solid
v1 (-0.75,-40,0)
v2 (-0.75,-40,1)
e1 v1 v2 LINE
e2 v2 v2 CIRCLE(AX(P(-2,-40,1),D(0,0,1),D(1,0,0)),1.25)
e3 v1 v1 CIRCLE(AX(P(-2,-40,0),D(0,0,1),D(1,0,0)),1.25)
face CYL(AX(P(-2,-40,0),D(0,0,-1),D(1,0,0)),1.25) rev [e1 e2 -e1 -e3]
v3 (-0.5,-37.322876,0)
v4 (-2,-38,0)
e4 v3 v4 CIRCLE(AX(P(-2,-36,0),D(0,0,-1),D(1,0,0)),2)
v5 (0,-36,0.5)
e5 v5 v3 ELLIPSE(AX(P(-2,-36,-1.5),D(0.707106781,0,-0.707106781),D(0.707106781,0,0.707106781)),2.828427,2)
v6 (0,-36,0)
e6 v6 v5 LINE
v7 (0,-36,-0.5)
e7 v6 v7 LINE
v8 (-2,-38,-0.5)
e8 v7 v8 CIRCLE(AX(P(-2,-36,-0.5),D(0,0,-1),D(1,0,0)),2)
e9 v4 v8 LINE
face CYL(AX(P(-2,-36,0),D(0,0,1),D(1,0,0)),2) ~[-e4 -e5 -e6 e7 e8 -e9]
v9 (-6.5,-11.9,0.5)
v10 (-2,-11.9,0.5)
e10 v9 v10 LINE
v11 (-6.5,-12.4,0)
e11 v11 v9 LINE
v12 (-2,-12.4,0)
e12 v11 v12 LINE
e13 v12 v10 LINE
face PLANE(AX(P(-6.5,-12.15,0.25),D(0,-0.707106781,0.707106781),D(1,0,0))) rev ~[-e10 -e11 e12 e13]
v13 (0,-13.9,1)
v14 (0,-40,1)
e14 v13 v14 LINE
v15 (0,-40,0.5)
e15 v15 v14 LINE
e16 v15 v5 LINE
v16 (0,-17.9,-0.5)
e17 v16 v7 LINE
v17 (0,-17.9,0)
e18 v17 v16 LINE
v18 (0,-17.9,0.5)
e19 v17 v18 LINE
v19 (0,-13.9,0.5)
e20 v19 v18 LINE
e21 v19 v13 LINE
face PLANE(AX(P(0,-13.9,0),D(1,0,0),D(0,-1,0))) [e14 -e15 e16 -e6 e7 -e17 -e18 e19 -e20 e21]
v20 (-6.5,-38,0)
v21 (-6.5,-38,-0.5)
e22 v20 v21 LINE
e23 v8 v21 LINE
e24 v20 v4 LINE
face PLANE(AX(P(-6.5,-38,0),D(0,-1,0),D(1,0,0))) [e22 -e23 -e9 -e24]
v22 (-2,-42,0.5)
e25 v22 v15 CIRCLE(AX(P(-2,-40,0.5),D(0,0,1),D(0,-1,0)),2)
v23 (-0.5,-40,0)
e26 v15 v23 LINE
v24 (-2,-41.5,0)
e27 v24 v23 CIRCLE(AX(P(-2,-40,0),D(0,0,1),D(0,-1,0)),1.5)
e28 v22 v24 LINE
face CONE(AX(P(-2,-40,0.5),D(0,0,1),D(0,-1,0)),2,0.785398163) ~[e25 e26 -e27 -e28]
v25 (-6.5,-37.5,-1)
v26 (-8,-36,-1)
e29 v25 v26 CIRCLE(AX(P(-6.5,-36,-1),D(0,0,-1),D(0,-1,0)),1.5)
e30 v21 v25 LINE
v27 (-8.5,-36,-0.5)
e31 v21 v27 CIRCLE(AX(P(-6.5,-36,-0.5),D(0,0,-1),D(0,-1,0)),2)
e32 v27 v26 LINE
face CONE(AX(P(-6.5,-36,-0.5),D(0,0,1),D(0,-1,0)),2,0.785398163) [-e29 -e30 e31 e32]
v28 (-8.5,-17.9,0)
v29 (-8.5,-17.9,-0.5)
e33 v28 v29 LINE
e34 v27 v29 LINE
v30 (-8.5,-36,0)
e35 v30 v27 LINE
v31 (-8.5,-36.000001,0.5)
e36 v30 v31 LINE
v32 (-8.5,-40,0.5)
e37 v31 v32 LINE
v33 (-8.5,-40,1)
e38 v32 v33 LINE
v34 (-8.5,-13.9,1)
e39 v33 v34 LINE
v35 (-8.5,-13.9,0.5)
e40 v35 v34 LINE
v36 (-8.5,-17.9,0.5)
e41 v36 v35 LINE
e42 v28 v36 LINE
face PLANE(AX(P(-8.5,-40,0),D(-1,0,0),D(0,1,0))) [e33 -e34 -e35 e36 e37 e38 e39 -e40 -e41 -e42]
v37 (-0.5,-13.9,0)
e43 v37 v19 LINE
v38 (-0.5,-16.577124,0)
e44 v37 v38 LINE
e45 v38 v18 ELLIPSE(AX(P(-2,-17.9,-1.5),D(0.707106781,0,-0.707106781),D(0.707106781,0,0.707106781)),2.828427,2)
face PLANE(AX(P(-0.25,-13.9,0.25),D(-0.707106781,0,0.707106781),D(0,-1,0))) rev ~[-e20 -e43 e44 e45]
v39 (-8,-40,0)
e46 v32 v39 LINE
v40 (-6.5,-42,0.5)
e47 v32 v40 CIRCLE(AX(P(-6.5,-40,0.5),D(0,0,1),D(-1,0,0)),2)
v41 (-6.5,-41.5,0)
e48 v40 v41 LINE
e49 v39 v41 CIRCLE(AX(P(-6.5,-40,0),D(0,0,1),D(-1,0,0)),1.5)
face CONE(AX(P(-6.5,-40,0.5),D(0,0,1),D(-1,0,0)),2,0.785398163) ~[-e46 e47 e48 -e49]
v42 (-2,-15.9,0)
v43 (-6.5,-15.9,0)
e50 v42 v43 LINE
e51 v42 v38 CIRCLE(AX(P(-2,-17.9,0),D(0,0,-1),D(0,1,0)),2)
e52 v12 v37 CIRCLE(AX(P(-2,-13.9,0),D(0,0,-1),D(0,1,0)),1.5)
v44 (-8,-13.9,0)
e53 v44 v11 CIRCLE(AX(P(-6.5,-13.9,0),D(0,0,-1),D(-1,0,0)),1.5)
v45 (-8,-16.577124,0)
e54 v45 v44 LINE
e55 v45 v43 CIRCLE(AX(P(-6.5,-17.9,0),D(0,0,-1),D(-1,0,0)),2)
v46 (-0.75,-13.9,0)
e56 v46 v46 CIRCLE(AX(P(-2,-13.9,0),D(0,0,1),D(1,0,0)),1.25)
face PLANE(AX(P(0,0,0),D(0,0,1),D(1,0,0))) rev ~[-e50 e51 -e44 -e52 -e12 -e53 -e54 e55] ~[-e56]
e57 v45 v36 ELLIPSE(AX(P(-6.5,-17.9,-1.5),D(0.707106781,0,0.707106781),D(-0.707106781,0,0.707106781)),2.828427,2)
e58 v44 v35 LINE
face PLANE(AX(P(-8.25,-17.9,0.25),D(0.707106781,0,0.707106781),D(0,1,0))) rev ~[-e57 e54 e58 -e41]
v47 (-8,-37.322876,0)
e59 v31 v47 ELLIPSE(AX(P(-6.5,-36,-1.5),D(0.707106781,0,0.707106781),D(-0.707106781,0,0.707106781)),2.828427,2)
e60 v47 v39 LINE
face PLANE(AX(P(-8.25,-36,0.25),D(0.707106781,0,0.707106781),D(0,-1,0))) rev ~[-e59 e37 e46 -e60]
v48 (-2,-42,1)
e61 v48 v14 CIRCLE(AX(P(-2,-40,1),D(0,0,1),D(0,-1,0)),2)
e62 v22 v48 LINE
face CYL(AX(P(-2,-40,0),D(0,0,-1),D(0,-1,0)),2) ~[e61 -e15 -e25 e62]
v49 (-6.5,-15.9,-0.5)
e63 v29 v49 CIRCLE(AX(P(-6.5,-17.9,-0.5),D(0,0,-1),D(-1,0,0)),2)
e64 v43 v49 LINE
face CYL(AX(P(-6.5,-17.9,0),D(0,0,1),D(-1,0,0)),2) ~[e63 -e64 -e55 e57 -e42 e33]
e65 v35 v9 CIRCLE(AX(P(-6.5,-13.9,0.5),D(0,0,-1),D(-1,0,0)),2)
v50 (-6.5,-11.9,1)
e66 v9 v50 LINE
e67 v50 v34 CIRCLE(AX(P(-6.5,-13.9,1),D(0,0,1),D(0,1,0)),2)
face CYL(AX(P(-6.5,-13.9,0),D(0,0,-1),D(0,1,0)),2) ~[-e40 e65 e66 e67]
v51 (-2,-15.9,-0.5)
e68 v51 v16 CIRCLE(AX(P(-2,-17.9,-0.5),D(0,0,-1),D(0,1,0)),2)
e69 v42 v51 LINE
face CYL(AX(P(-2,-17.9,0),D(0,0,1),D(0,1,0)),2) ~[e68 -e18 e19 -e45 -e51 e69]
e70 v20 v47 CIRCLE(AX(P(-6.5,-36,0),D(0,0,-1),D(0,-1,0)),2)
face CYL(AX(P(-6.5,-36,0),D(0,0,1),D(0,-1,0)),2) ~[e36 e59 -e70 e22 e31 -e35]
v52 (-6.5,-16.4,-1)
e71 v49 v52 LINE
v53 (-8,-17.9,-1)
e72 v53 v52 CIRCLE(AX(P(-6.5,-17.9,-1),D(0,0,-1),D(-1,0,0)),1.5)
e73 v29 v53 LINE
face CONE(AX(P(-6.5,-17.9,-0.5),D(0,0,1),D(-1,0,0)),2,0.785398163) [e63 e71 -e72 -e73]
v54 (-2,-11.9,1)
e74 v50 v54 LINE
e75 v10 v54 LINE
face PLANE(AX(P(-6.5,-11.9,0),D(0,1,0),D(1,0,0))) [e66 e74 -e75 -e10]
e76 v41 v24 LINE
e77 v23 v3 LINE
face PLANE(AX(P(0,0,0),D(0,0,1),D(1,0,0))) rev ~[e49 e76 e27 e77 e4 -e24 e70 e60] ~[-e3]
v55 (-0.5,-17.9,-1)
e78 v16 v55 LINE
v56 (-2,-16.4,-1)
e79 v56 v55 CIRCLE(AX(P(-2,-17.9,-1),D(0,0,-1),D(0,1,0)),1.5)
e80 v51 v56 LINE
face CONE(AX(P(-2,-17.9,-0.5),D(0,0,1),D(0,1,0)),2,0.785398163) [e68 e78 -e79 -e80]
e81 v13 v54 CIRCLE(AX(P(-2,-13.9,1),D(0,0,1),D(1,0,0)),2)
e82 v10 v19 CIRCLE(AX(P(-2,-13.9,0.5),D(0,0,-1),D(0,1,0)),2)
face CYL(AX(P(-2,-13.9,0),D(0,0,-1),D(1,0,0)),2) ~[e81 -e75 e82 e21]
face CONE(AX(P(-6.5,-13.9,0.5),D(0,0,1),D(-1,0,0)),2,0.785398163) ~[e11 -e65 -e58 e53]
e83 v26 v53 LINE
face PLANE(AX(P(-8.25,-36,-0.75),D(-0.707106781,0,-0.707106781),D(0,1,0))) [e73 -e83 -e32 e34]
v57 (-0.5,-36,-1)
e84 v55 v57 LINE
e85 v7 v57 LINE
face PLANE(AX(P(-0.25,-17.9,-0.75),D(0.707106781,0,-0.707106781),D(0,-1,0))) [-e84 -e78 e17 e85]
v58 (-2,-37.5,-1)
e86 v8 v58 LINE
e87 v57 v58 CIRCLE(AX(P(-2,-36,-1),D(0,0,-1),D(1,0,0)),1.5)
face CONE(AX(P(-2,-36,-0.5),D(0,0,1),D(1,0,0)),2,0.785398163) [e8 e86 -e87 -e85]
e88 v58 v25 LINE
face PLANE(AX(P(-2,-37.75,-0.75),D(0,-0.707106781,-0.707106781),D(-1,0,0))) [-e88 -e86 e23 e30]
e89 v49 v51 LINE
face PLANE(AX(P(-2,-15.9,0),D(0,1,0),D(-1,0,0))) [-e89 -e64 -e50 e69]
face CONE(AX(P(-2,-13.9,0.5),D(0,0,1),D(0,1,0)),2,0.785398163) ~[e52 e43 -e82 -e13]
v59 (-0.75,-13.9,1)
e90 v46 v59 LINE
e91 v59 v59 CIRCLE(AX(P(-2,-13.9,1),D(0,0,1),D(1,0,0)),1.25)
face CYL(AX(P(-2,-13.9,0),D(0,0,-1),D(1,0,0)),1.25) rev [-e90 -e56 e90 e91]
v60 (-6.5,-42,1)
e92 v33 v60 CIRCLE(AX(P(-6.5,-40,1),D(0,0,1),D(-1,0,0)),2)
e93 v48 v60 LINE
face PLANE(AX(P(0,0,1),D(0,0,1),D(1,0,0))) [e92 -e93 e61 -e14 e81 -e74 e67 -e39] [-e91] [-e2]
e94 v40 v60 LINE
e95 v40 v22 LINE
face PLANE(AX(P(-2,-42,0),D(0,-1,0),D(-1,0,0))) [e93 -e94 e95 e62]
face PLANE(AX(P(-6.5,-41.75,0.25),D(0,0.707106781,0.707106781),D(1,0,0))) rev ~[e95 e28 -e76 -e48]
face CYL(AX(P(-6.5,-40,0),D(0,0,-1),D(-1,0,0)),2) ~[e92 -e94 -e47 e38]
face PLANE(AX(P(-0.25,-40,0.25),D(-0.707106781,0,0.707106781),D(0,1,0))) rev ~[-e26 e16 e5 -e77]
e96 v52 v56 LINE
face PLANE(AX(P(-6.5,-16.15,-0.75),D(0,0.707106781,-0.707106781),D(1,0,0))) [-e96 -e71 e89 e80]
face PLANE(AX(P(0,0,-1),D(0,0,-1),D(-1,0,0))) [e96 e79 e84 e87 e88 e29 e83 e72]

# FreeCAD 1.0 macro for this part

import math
import FreeCAD as App
import Part
import Sketcher

V = App.Vector
Q = App.Units.Quantity


def edges_at(feature, points):
    """Names of the edges that pass closest to the given points."""
    edges = feature.Shape.Edges
    near = lambda p: min(range(len(edges)), key=lambda i: edges[i].distToShape(Part.Vertex(*p))[0])
    return sorted({f"Edge{near(p) + 1}" for p in points})

doc = App.newDocument("Part")
body = doc.addObject("PartDesign::Body", "Body")

sketch1 = body.newObject("Sketcher::SketchObject", "Sketch")
sketch1.AttachmentSupport = (doc.getObject("XY_Plane"), [""])
sketch1.MapMode = "FlatFace"
sketch1.addGeometry(Part.LineSegment(V(-2, -11.9, 0), V(-6.5, -11.9, 0)), False)
sketch1.addGeometry(Part.ArcOfCircle(Part.Circle(V(-6.5, -13.9, 0), V(0, 0, 1), 2), math.radians(90), math.radians(180)), False)
sketch1.addGeometry(Part.LineSegment(V(-8.5, -13.9, 0), V(-8.5, -40, 0)), False)
sketch1.addGeometry(Part.ArcOfCircle(Part.Circle(V(-6.5, -40, 0), V(0, 0, 1), 2), math.radians(180), math.radians(270)), False)
sketch1.addGeometry(Part.LineSegment(V(-6.5, -42, 0), V(-2, -42, 0)), False)
sketch1.addGeometry(Part.ArcOfCircle(Part.Circle(V(-2, -40, 0), V(0, 0, 1), 2), math.radians(-90), math.radians(0)), False)
sketch1.addGeometry(Part.LineSegment(V(0, -40, 0), V(0, -13.9, 0)), False)
sketch1.addGeometry(Part.ArcOfCircle(Part.Circle(V(-2, -13.9, 0), V(0, 0, 1), 2), math.radians(0), math.radians(90)), False)
sketch1.addGeometry(Part.Circle(V(-2, -40, 0), V(0, 0, 1), 1.25), False)
sketch1.addGeometry(Part.Circle(V(-2, -13.9, 0), V(0, 0, 1), 1.25), False)
sketch1.addConstraint(Sketcher.Constraint("Tangent", 0, 2, 1, 1))
sketch1.addConstraint(Sketcher.Constraint("Tangent", 1, 2, 2, 1))
sketch1.addConstraint(Sketcher.Constraint("Tangent", 2, 2, 3, 1))
sketch1.addConstraint(Sketcher.Constraint("Tangent", 3, 2, 4, 1))
sketch1.addConstraint(Sketcher.Constraint("Tangent", 4, 2, 5, 1))
sketch1.addConstraint(Sketcher.Constraint("Tangent", 5, 2, 6, 1))
sketch1.addConstraint(Sketcher.Constraint("Tangent", 6, 2, 7, 1))
sketch1.addConstraint(Sketcher.Constraint("Tangent", 7, 2, 0, 1))
sketch1.addConstraint(Sketcher.Constraint("Horizontal", 0))
sketch1.addConstraint(Sketcher.Constraint("Vertical", 2))
sketch1.addConstraint(Sketcher.Constraint("Horizontal", 4))
sketch1.addConstraint(Sketcher.Constraint("Vertical", 6))
sketch1.addConstraint(Sketcher.Constraint("Coincident", 8, 3, 5, 3))
sketch1.addConstraint(Sketcher.Constraint("Coincident", 9, 3, 7, 3))
sketch1.addConstraint(Sketcher.Constraint("Equal", 1, 3))
sketch1.addConstraint(Sketcher.Constraint("Equal", 3, 5))
sketch1.addConstraint(Sketcher.Constraint("Equal", 5, 7))
sketch1.addConstraint(Sketcher.Constraint("Equal", 8, 9))
sketch1.addConstraint(Sketcher.Constraint("PointOnObject", 5, 2, -2))
sketch1.addConstraint(Sketcher.Constraint("Radius", 1, Q("2 mm")))
sketch1.addConstraint(Sketcher.Constraint("Diameter", 8, Q("2.5 mm")))
sketch1.addConstraint(Sketcher.Constraint("DistanceX", 0, 2, 0, 1, Q("4.5 mm")))
sketch1.addConstraint(Sketcher.Constraint("DistanceY", 2, 2, 2, 1, Q("26.1 mm")))
sketch1.addConstraint(Sketcher.Constraint("DistanceY", 3, 3, -1, 1, Q("40 mm")))
pad1 = body.newObject("PartDesign::Pad", "Pad")
pad1.Profile = sketch1
pad1.Length = 1

sketch2 = body.newObject("Sketcher::SketchObject", "Sketch001")
sketch2.AttachmentSupport = (doc.getObject("XY_Plane"), [""])
sketch2.MapMode = "FlatFace"
sketch2.addGeometry(Part.LineSegment(V(-8.5, -36, 0), V(-8.5, -17.9, 0)), False)
sketch2.addGeometry(Part.ArcOfCircle(Part.Circle(V(-6.5, -17.9, 0), V(0, 0, 1), 2), math.radians(90), math.radians(180)), False)
sketch2.addGeometry(Part.LineSegment(V(-6.5, -15.9, 0), V(-2, -15.9, 0)), False)
sketch2.addGeometry(Part.ArcOfCircle(Part.Circle(V(-2, -17.9, 0), V(0, 0, 1), 2), math.radians(0), math.radians(90)), False)
sketch2.addGeometry(Part.LineSegment(V(0, -17.9, 0), V(0, -36, 0)), False)
sketch2.addGeometry(Part.ArcOfCircle(Part.Circle(V(-2, -36, 0), V(0, 0, 1), 2), math.radians(-90), math.radians(0)), False)
sketch2.addGeometry(Part.LineSegment(V(-2, -38, 0), V(-6.5, -38, 0)), False)
sketch2.addGeometry(Part.ArcOfCircle(Part.Circle(V(-6.5, -36, 0), V(0, 0, 1), 2), math.radians(180), math.radians(270)), False)
sketch2.addConstraint(Sketcher.Constraint("Tangent", 0, 2, 1, 2))
sketch2.addConstraint(Sketcher.Constraint("Tangent", 1, 1, 2, 1))
sketch2.addConstraint(Sketcher.Constraint("Tangent", 2, 2, 3, 2))
sketch2.addConstraint(Sketcher.Constraint("Tangent", 3, 1, 4, 1))
sketch2.addConstraint(Sketcher.Constraint("Tangent", 4, 2, 5, 2))
sketch2.addConstraint(Sketcher.Constraint("Tangent", 5, 1, 6, 1))
sketch2.addConstraint(Sketcher.Constraint("Tangent", 6, 2, 7, 2))
sketch2.addConstraint(Sketcher.Constraint("Tangent", 7, 1, 0, 1))
sketch2.addConstraint(Sketcher.Constraint("Vertical", 0))
sketch2.addConstraint(Sketcher.Constraint("Horizontal", 2))
sketch2.addConstraint(Sketcher.Constraint("Vertical", 4))
sketch2.addConstraint(Sketcher.Constraint("Horizontal", 6))
sketch2.addConstraint(Sketcher.Constraint("Equal", 1, 3))
sketch2.addConstraint(Sketcher.Constraint("Equal", 3, 5))
sketch2.addConstraint(Sketcher.Constraint("Equal", 5, 7))
sketch2.addConstraint(Sketcher.Constraint("PointOnObject", 3, 1, -2))
sketch2.addConstraint(Sketcher.Constraint("Radius", 1, Q("2 mm")))
sketch2.addConstraint(Sketcher.Constraint("DistanceX", 2, 1, 2, 2, Q("4.5 mm")))
sketch2.addConstraint(Sketcher.Constraint("DistanceY", 0, 1, 0, 2, Q("18.1 mm")))
sketch2.addConstraint(Sketcher.Constraint("DistanceY", 5, 3, -1, 1, Q("36 mm")))
pad2 = body.newObject("PartDesign::Pad", "Pad001")
pad2.Profile = sketch2
pad2.Length = 1
pad2.Reversed = True
doc.recompute()

chamfer = body.newObject("PartDesign::Chamfer", "Chamfer")
chamfer.Base = (pad2, edges_at(pad2, [
    (-0.586, -16.486, -1),
    (0, -26.95, -1),
    (-0.586, -37.414, -1),
    (-4.25, -38, -1),
    (-7.914, -37.414, -1),
    (-8.5, -26.95, -1),
    (-7.914, -16.486, -1),
    (-4.25, -15.9, -1),
    (0, -15.9, 0),
    (-0.586, -12.486, 0),
    (-4.25, -11.9, 0),
    (-7.914, -12.486, 0),
    (-8.5, -15.9, 0),
    (-0.586, -41.414, 0),
    (0, -38, 0),
    (-4.25, -42, 0),
    (-7.914, -41.414, 0),
    (-8.5, -38, 0),
]))
chamfer.Size = 0.5

doc.recompute()
